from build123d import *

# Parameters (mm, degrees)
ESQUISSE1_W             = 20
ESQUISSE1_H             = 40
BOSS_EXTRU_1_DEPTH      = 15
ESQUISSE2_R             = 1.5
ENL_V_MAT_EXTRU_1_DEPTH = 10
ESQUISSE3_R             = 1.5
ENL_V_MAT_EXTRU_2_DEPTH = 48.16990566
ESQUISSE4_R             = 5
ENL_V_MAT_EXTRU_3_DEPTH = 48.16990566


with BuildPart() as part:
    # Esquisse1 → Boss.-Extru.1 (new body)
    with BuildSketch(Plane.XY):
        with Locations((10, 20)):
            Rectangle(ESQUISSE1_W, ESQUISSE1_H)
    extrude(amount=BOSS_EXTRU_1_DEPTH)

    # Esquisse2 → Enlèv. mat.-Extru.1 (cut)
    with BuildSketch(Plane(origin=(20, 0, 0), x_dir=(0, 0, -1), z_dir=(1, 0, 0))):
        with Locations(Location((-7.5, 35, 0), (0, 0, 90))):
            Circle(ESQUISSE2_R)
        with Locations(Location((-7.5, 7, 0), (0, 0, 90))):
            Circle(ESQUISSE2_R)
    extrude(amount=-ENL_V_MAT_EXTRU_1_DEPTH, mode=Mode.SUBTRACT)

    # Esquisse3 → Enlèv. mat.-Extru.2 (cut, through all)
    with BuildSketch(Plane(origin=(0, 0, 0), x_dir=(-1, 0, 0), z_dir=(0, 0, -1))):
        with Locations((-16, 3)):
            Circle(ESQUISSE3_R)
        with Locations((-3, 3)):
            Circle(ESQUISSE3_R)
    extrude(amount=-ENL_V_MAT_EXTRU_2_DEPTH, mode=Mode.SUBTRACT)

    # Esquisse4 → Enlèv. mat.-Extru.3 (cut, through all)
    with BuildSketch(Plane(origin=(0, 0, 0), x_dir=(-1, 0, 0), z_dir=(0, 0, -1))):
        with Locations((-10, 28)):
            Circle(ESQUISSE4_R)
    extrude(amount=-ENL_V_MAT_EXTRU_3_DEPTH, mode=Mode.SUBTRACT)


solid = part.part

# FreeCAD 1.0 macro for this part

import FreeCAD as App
import Part
import Sketcher
Q = App.Units.Quantity


def add_polygon(sketch, points):
    """Adds a closed chain of lines whose ends are joined by coincident constraints."""
    first, n = sketch.GeometryCount, len(points)
    for a, b in zip(points, points[1:] + points[:1]):
        sketch.addGeometry(Part.LineSegment(App.Vector(*a, 0), App.Vector(*b, 0)), False)
    for i in range(n):
        sketch.addConstraint(Sketcher.Constraint("Coincident", first + i, 2, first + (i + 1) % n, 1))

doc = App.newDocument("Part")
params = doc.addObject("Spreadsheet::Sheet", "Params")
for row, (alias, value) in enumerate([
    ("sketch1_width", "20 mm"),
    ("sketch1_height", "40 mm"),
    ("pad1_length", "15 mm"),
    ("sketch2_diameter", "3 mm"),
    ("pocket1_length", "10 mm"),
    ("sketch3_diameter", "3 mm"),
    ("sketch4_diameter", "10 mm"),
], start=1):
    params.set(f"A{row}", alias)
    params.set(f"B{row}", "=" + value)
    params.setAlias(f"B{row}", alias)

body = doc.addObject("PartDesign::Body", "Body")

sketch1 = body.newObject("Sketcher::SketchObject", "Sketch")
sketch1.AttachmentSupport = (doc.getObject("XY_Plane"), [""])
sketch1.MapMode = "FlatFace"
add_polygon(sketch1, [(0, 40), (0, 0), (20, 0), (20, 40)])
sketch1.addConstraint(Sketcher.Constraint("Vertical", 0))
sketch1.addConstraint(Sketcher.Constraint("Horizontal", 1))
sketch1.addConstraint(Sketcher.Constraint("Vertical", 2))
sketch1.addConstraint(Sketcher.Constraint("Horizontal", 3))
sketch1.addConstraint(Sketcher.Constraint("Coincident", 0, 2, -1, 1))
sketch1.addConstraint(Sketcher.Constraint("DistanceX", 1, 1, 1, 2, Q("20 mm")))
sketch1.addConstraint(Sketcher.Constraint("DistanceY", 0, 2, 0, 1, Q("40 mm")))
sketch1.setExpression("Constraints[9]", "Params.sketch1_width")
sketch1.setExpression("Constraints[10]", "Params.sketch1_height")
pad1 = body.newObject("PartDesign::Pad", "Pad")
pad1.Profile = sketch1
pad1.setExpression("Length", "Params.pad1_length")

sketch2 = body.newObject("Sketcher::SketchObject", "Sketch001")
sketch2.AttachmentSupport = (doc.getObject("YZ_Plane"), [""])
sketch2.MapMode = "FlatFace"
sketch2.AttachmentOffset = App.Placement(App.Vector(0, 0, 20), App.Rotation())
sketch2.addGeometry(Part.Circle(App.Vector(35, 7.5, 0), App.Vector(0, 0, 1), 1.5), False)
sketch2.addGeometry(Part.Circle(App.Vector(7, 7.5, 0), App.Vector(0, 0, 1), 1.5), False)
sketch2.addConstraint(Sketcher.Constraint("Equal", 0, 1))
sketch2.addConstraint(Sketcher.Constraint("Horizontal", 0, 3, 1, 3))
sketch2.addConstraint(Sketcher.Constraint("Diameter", 0, Q("3 mm")))
sketch2.addConstraint(Sketcher.Constraint("DistanceX", -1, 1, 0, 3, Q("35 mm")))
sketch2.addConstraint(Sketcher.Constraint("DistanceX", -1, 1, 1, 3, Q("7 mm")))
sketch2.addConstraint(Sketcher.Constraint("DistanceY", -1, 1, 0, 3, Q("7.5 mm")))
sketch2.setExpression("Constraints[2]", "Params.sketch2_diameter")
pocket1 = body.newObject("PartDesign::Pocket", "Pocket")
pocket1.Profile = sketch2
pocket1.setExpression("Length", "Params.pocket1_length")

sketch3 = body.newObject("Sketcher::SketchObject", "Sketch002")
sketch3.AttachmentSupport = (doc.getObject("XY_Plane"), [""])
sketch3.MapMode = "FlatFace"
sketch3.addGeometry(Part.Circle(App.Vector(16, 3, 0), App.Vector(0, 0, 1), 1.5), False)
sketch3.addGeometry(Part.Circle(App.Vector(3, 3, 0), App.Vector(0, 0, 1), 1.5), False)
sketch3.addConstraint(Sketcher.Constraint("Equal", 0, 1))
sketch3.addConstraint(Sketcher.Constraint("Horizontal", 0, 3, 1, 3))
sketch3.addConstraint(Sketcher.Constraint("Diameter", 0, Q("3 mm")))
sketch3.addConstraint(Sketcher.Constraint("DistanceX", -1, 1, 0, 3, Q("16 mm")))
sketch3.addConstraint(Sketcher.Constraint("DistanceY", -1, 1, 0, 3, Q("3 mm")))
sketch3.addConstraint(Sketcher.Constraint("DistanceX", -1, 1, 1, 3, Q("3 mm")))
sketch3.setExpression("Constraints[2]", "Params.sketch3_diameter")
pocket2 = body.newObject("PartDesign::Pocket", "Pocket001")
pocket2.Profile = sketch3
pocket2.Type = "ThroughAll"
pocket2.Reversed = True

sketch4 = body.newObject("Sketcher::SketchObject", "Sketch003")
sketch4.AttachmentSupport = (doc.getObject("XY_Plane"), [""])
sketch4.MapMode = "FlatFace"
sketch4.addGeometry(Part.Circle(App.Vector(10, 28, 0), App.Vector(0, 0, 1), 5), False)
sketch4.addConstraint(Sketcher.Constraint("Diameter", 0, Q("10 mm")))
sketch4.addConstraint(Sketcher.Constraint("DistanceX", -1, 1, 0, 3, Q("10 mm")))
sketch4.addConstraint(Sketcher.Constraint("DistanceY", -1, 1, 0, 3, Q("28 mm")))
sketch4.setExpression("Constraints[0]", "Params.sketch4_diameter")
pocket3 = body.newObject("PartDesign::Pocket", "Pocket002")
pocket3.Profile = sketch4
pocket3.Type = "ThroughAll"
pocket3.Reversed = True

doc.recompute()
